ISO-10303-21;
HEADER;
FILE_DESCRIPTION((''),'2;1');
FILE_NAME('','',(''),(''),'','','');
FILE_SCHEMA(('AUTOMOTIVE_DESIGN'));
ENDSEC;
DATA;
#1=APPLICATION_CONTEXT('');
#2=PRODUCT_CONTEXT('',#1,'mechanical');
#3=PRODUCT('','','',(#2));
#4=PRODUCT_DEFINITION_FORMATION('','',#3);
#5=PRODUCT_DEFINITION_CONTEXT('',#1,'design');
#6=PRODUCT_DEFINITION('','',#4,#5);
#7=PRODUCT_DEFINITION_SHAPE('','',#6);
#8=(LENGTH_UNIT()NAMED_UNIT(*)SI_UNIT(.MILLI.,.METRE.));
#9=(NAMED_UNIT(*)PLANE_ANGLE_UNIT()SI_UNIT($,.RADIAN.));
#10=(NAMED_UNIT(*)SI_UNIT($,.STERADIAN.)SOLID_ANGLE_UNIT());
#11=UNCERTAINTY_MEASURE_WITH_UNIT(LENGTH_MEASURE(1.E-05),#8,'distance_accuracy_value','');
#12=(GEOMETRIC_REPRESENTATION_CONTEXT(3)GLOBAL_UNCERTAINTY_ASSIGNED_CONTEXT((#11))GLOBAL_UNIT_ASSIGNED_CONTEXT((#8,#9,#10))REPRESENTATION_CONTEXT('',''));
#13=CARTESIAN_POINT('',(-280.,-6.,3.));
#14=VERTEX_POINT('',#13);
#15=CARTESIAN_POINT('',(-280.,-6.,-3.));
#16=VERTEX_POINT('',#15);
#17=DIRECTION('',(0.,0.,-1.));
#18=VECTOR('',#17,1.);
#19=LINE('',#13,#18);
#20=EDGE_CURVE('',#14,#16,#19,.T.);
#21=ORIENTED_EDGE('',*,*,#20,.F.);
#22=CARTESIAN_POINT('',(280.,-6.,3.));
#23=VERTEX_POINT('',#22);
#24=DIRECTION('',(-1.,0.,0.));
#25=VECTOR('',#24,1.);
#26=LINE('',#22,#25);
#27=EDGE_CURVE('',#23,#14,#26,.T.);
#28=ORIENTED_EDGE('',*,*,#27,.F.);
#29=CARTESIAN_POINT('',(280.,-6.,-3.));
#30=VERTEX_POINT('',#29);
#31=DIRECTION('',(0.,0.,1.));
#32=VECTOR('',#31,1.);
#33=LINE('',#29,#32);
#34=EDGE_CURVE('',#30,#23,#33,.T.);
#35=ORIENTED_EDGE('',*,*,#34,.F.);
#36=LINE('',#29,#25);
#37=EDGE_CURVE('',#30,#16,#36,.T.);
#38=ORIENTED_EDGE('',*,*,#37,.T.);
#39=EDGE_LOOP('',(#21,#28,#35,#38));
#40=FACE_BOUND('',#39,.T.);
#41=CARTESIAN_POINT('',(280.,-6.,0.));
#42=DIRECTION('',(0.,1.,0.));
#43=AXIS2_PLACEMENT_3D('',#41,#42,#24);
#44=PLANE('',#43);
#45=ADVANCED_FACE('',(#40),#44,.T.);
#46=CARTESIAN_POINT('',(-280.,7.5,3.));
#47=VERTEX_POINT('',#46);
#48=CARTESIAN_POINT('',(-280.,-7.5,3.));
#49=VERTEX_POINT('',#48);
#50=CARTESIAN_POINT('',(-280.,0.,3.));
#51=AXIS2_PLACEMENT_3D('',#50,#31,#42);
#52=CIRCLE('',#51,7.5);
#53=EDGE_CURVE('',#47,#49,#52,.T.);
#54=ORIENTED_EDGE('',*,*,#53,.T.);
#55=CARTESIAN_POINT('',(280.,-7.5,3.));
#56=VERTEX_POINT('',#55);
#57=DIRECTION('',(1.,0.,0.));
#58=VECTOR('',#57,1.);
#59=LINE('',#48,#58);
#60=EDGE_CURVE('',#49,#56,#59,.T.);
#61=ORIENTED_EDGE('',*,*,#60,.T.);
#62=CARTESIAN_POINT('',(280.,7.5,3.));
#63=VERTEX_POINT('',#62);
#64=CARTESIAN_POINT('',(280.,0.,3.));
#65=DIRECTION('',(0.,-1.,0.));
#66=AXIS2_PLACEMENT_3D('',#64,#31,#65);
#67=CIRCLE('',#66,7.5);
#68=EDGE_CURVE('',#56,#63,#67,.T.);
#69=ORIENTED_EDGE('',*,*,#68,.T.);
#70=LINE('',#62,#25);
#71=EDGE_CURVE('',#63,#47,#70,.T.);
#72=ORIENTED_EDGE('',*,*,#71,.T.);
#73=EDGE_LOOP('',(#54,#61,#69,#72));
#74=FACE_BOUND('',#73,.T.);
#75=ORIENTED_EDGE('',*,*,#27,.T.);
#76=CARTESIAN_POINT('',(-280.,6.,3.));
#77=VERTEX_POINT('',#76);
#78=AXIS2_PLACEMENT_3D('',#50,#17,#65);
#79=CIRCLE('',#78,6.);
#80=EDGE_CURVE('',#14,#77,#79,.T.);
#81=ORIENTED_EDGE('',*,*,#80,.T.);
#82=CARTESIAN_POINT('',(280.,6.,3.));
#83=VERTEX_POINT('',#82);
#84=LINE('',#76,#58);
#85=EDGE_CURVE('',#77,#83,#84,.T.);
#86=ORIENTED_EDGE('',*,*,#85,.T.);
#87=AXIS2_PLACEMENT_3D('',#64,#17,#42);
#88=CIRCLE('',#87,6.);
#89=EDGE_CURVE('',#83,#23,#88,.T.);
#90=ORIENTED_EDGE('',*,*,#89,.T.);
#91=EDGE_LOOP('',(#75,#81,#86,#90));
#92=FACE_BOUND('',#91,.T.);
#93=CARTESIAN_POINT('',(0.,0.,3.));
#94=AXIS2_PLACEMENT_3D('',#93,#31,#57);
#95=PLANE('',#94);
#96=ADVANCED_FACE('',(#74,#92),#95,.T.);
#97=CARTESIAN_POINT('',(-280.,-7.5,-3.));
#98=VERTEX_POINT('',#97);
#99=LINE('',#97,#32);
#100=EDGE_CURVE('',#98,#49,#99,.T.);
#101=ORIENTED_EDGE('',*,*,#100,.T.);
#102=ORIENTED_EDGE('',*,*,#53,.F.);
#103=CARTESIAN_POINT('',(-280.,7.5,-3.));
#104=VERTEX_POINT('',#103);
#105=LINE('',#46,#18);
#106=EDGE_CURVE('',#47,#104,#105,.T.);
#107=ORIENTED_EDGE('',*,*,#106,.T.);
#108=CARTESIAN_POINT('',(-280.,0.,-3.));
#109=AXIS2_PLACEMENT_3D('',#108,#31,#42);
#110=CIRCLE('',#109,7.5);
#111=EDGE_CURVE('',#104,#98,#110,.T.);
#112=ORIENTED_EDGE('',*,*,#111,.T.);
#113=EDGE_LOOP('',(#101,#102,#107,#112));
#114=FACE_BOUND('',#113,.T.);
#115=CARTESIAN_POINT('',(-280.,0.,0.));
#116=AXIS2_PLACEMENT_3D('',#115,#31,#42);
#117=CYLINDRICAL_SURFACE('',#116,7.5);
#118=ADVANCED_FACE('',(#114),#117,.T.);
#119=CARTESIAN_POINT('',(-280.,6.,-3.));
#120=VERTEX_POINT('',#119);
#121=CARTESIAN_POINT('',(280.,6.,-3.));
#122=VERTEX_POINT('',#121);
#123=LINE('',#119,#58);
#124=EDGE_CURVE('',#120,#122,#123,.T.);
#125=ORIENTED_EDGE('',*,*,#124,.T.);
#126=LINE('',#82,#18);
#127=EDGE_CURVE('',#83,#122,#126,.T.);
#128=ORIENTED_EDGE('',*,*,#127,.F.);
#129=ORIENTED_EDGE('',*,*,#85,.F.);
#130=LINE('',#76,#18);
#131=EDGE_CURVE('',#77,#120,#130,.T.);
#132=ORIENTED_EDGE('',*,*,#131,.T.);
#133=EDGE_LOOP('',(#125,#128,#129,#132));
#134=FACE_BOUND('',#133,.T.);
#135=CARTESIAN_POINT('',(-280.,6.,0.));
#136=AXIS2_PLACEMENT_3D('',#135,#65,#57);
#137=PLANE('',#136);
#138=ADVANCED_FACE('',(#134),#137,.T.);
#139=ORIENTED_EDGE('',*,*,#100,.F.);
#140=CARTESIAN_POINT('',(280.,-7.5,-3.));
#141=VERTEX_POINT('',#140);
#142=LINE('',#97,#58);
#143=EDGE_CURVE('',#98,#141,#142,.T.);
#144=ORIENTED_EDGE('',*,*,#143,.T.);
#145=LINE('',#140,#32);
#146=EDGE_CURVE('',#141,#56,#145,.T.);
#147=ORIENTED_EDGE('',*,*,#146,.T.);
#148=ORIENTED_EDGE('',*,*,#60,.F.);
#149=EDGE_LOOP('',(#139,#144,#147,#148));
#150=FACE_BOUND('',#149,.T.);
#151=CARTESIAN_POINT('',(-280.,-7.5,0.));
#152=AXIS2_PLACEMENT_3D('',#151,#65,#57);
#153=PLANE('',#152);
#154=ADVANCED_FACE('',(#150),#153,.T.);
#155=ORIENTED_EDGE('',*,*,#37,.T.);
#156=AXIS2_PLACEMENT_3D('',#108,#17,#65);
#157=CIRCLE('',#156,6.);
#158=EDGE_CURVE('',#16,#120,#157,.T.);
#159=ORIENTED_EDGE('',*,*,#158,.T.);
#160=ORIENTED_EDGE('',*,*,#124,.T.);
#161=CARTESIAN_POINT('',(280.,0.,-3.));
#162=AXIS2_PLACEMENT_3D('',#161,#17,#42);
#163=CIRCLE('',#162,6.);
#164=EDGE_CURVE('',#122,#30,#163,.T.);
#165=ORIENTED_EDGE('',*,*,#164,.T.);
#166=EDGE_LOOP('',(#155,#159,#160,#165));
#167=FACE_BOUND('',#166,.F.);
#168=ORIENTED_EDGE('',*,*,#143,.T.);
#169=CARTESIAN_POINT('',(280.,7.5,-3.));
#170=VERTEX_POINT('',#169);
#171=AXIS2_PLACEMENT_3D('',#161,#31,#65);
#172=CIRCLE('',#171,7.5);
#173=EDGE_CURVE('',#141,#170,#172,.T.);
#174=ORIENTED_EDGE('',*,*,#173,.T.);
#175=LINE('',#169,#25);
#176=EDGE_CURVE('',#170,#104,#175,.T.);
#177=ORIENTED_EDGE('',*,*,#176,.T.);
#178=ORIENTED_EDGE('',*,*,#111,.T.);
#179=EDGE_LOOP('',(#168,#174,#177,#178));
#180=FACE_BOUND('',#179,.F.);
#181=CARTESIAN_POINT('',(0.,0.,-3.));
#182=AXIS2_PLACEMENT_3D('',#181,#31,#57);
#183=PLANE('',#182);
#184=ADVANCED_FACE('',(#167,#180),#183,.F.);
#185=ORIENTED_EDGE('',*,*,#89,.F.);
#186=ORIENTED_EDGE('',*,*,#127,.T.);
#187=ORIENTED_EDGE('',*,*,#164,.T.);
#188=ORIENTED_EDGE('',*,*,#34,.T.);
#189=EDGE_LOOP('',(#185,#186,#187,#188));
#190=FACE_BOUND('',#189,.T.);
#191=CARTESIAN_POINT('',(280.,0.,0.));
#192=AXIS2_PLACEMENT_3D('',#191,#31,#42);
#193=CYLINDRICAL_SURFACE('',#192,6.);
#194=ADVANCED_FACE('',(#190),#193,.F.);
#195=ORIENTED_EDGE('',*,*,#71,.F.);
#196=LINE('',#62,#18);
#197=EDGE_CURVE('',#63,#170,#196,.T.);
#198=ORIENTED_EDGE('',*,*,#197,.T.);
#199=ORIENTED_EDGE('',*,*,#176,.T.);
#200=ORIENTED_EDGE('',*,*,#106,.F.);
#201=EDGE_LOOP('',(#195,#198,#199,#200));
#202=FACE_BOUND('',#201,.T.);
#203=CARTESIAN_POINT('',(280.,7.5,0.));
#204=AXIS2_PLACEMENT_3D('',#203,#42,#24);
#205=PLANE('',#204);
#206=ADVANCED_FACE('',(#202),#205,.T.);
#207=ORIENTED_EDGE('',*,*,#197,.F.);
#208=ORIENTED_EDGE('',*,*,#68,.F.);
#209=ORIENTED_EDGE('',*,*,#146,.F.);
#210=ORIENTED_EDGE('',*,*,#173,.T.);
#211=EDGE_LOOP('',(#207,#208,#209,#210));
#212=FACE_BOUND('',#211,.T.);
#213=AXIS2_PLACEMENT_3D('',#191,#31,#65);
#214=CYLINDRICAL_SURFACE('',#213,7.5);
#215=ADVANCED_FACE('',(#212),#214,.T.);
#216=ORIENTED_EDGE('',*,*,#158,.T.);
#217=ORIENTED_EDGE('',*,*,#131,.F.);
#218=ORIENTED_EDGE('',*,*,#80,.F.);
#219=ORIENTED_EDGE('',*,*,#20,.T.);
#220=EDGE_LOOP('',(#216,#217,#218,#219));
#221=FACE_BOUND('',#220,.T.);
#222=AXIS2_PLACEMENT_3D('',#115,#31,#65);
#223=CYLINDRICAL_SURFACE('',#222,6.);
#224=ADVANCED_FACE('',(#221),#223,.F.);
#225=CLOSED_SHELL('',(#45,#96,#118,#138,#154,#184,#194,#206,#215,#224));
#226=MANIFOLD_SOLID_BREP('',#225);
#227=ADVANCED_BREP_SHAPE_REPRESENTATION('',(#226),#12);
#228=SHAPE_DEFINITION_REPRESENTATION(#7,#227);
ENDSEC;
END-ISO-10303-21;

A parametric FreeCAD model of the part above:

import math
import FreeCAD as App
import Part
import Sketcher

V = App.Vector

doc = App.newDocument("Part")
body = doc.addObject("PartDesign::Body", "Body")

# Sketch on XY plane
sketch1 = body.newObject("Sketcher::SketchObject", "Sketch")
sketch1.AttachmentSupport = (doc.getObject("XY_Plane"), [""])
sketch1.MapMode = "FlatFace"
sketch1.addGeometry(Part.ArcOfCircle(Part.Circle(V(-280, 0, 0), V(0, 0, 1), 8), math.radians(90), math.radians(270)), False)
sketch1.addGeometry(Part.LineSegment(V(-280, -8, 0), V(280, -8, 0)), False)
sketch1.addGeometry(Part.ArcOfCircle(Part.Circle(V(280, 0, 0), V(0, 0, 1), 8), math.radians(-90), math.radians(90)), False)
sketch1.addGeometry(Part.LineSegment(V(280, 8, 0), V(-280, 8, 0)), False)
sketch1.addGeometry(Part.ArcOfCircle(Part.Circle(V(280, 0, 0), V(0, 0, 1), 6), math.radians(-90), math.radians(90)), False)
sketch1.addGeometry(Part.LineSegment(V(280, -6, 0), V(-280, -6, 0)), False)
sketch1.addGeometry(Part.ArcOfCircle(Part.Circle(V(-280, 0, 0), V(0, 0, 1), 6), math.radians(90), math.radians(270)), False)
sketch1.addGeometry(Part.LineSegment(V(-280, 6, 0), V(280, 6, 0)), False)
sketch1.addConstraint(Sketcher.Constraint("Tangent", 0, 2, 1, 1))
sketch1.addConstraint(Sketcher.Constraint("Tangent", 1, 2, 2, 1))
sketch1.addConstraint(Sketcher.Constraint("Tangent", 2, 2, 3, 1))
sketch1.addConstraint(Sketcher.Constraint("Tangent", 3, 2, 0, 1))
sketch1.addConstraint(Sketcher.Constraint("Tangent", 4, 1, 5, 1))
sketch1.addConstraint(Sketcher.Constraint("Tangent", 5, 2, 6, 2))
sketch1.addConstraint(Sketcher.Constraint("Tangent", 6, 1, 7, 1))
sketch1.addConstraint(Sketcher.Constraint("Tangent", 7, 2, 4, 2))
sketch1.addConstraint(Sketcher.Constraint("Horizontal", 1))
sketch1.addConstraint(Sketcher.Constraint("Horizontal", 3))
sketch1.addConstraint(Sketcher.Constraint("Horizontal", 5))
sketch1.addConstraint(Sketcher.Constraint("Horizontal", 7))
sketch1.addConstraint(Sketcher.Constraint("Coincident", 4, 3, 2, 3))
sketch1.addConstraint(Sketcher.Constraint("Symmetric", 0, 3, 2, 3, -1, 1))
sketch1.addConstraint(Sketcher.Constraint("Vertical", 6, 3, 0, 2))
sketch1.addConstraint(Sketcher.Constraint("Radius", 4, 6.0))
sketch1.addConstraint(Sketcher.Constraint("Radius", 0, 7.5))
sketch1.addConstraint(Sketcher.Constraint("DistanceX", 1, 1, 1, 2, 560.0))
pad1 = body.newObject("PartDesign::Pad", "Pad")
pad1.Profile = sketch1
pad1.Length = 6
pad1.Midplane = True

doc.recompute()
